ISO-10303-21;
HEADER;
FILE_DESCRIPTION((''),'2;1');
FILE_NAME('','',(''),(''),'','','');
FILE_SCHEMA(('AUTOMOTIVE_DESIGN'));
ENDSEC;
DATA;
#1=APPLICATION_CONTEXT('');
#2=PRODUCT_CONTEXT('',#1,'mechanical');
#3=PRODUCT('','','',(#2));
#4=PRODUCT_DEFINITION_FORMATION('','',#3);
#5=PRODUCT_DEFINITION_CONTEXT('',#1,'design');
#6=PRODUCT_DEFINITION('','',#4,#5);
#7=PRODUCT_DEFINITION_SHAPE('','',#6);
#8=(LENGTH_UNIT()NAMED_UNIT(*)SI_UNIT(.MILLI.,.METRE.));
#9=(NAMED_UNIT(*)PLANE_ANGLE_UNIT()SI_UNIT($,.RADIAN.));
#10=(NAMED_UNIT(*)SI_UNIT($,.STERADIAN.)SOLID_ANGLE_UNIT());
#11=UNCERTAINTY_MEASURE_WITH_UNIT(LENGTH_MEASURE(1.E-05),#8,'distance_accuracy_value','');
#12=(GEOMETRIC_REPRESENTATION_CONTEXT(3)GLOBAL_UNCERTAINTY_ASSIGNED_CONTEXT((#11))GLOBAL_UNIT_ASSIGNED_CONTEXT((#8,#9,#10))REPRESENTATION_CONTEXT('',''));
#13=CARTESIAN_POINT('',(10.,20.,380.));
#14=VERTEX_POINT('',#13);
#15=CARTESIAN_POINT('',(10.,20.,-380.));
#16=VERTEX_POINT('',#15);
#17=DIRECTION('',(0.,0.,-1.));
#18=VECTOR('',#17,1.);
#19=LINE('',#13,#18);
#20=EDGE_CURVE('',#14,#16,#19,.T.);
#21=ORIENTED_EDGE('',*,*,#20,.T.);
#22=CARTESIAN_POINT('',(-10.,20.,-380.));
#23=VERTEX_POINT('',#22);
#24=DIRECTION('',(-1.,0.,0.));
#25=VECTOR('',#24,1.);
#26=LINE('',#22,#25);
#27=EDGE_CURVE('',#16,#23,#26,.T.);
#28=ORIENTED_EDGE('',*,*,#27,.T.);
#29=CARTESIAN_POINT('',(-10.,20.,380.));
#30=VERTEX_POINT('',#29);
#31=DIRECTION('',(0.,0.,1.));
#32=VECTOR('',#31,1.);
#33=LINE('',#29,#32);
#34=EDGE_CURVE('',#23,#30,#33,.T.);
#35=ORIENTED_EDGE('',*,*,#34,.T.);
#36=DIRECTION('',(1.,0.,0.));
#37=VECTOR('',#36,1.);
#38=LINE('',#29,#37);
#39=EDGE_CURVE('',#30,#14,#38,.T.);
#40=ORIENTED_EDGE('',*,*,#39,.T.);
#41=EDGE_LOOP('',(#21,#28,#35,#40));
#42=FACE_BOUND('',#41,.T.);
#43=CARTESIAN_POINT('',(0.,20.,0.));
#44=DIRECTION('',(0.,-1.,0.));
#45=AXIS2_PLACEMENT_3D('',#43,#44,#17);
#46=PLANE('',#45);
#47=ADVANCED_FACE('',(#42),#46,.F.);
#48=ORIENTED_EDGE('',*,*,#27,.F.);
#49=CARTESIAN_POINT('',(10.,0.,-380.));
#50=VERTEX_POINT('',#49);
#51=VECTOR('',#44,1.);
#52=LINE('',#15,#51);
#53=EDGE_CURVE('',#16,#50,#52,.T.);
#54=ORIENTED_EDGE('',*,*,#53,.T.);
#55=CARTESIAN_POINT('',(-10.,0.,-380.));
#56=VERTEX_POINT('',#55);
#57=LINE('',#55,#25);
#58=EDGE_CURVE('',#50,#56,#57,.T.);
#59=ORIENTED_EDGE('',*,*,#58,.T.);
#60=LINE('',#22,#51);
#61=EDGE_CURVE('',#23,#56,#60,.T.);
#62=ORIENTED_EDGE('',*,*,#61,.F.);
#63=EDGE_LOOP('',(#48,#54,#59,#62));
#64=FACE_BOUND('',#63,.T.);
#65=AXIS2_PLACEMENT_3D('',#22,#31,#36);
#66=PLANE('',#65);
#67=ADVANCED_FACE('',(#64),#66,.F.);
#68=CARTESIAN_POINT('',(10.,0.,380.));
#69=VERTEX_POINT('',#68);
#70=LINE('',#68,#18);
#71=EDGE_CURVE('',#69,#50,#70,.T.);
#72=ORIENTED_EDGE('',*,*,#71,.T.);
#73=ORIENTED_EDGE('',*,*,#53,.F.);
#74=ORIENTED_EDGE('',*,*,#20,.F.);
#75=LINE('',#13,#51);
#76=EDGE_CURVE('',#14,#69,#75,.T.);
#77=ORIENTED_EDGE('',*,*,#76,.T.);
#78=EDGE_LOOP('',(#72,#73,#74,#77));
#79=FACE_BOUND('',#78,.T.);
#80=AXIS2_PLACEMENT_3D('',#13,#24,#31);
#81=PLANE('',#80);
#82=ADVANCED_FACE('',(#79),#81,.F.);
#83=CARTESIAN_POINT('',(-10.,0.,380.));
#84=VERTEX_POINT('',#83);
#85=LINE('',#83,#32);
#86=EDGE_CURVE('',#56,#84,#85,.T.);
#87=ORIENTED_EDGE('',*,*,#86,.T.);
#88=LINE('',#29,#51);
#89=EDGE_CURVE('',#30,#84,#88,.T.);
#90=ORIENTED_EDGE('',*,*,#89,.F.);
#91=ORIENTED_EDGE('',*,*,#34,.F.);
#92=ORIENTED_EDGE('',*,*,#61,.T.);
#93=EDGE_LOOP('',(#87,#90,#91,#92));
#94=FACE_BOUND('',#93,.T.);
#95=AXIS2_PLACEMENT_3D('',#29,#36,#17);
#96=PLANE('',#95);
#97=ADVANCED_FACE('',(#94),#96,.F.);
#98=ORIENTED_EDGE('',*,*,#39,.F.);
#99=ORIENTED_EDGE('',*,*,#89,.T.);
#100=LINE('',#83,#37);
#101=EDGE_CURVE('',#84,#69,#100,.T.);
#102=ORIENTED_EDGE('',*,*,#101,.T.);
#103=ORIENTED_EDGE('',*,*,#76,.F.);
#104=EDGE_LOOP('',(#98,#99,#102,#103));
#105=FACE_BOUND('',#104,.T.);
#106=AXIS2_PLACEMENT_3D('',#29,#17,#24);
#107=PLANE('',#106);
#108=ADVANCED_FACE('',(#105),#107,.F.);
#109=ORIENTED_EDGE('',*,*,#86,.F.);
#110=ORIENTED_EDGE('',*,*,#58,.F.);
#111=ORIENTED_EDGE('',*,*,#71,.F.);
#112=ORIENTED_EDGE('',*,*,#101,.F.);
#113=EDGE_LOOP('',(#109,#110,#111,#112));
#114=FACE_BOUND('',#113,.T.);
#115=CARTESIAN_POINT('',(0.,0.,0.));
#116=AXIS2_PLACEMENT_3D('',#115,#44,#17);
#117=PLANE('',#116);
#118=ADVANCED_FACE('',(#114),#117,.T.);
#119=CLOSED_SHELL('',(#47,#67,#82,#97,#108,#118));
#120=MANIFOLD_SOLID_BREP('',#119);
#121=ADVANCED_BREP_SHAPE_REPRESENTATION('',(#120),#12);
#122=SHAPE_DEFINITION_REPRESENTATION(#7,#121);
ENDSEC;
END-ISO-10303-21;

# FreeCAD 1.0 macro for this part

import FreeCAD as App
import Part
import Sketcher
from FreeCAD import Vector
Q = App.Units.Quantity


def add_polygon(sketch, points):
    """Adds a closed chain of lines whose ends are joined by coincident constraints."""
    first, n = sketch.GeometryCount, len(points)
    for a, b in zip(points, points[1:] + points[:1]):
        sketch.addGeometry(Part.LineSegment(App.Vector(*a, 0), App.Vector(*b, 0)), False)
    for i in range(n):
        sketch.addConstraint(Sketcher.Constraint("Coincident", first + i, 2, first + (i + 1) % n, 1))

doc = App.newDocument("Part")
body = doc.addObject("PartDesign::Body", "Body")

# Sketch on XZ plane
sketch1 = body.newObject("Sketcher::SketchObject", "Sketch")
sketch1.AttachmentSupport = (doc.getObject("XZ_Plane"), [""])
sketch1.MapMode = "FlatFace"
add_polygon(sketch1, [(-10, -380), (-10, 380), (10, 380), (10, -380)])  # lines 0-3
sketch1.addConstraint(Sketcher.Constraint("Vertical", 0))
sketch1.addConstraint(Sketcher.Constraint("Horizontal", 1))
sketch1.addConstraint(Sketcher.Constraint("Vertical", 2))
sketch1.addConstraint(Sketcher.Constraint("Horizontal", 3))
sketch1.addConstraint(Sketcher.Constraint("Symmetric", 0, 2, 2, 2, -1, 1))
sketch1.addConstraint(Sketcher.Constraint("DistanceX", 1, 1, 1, 2, Q("20 mm")))
sketch1.addConstraint(Sketcher.Constraint("DistanceY", 0, 1, 0, 2, Q("760 mm")))
pad1 = body.newObject("PartDesign::Pad", "Pad")
pad1.Profile = sketch1
pad1.Length = 20
pad1.Reversed = True

doc.recompute()
